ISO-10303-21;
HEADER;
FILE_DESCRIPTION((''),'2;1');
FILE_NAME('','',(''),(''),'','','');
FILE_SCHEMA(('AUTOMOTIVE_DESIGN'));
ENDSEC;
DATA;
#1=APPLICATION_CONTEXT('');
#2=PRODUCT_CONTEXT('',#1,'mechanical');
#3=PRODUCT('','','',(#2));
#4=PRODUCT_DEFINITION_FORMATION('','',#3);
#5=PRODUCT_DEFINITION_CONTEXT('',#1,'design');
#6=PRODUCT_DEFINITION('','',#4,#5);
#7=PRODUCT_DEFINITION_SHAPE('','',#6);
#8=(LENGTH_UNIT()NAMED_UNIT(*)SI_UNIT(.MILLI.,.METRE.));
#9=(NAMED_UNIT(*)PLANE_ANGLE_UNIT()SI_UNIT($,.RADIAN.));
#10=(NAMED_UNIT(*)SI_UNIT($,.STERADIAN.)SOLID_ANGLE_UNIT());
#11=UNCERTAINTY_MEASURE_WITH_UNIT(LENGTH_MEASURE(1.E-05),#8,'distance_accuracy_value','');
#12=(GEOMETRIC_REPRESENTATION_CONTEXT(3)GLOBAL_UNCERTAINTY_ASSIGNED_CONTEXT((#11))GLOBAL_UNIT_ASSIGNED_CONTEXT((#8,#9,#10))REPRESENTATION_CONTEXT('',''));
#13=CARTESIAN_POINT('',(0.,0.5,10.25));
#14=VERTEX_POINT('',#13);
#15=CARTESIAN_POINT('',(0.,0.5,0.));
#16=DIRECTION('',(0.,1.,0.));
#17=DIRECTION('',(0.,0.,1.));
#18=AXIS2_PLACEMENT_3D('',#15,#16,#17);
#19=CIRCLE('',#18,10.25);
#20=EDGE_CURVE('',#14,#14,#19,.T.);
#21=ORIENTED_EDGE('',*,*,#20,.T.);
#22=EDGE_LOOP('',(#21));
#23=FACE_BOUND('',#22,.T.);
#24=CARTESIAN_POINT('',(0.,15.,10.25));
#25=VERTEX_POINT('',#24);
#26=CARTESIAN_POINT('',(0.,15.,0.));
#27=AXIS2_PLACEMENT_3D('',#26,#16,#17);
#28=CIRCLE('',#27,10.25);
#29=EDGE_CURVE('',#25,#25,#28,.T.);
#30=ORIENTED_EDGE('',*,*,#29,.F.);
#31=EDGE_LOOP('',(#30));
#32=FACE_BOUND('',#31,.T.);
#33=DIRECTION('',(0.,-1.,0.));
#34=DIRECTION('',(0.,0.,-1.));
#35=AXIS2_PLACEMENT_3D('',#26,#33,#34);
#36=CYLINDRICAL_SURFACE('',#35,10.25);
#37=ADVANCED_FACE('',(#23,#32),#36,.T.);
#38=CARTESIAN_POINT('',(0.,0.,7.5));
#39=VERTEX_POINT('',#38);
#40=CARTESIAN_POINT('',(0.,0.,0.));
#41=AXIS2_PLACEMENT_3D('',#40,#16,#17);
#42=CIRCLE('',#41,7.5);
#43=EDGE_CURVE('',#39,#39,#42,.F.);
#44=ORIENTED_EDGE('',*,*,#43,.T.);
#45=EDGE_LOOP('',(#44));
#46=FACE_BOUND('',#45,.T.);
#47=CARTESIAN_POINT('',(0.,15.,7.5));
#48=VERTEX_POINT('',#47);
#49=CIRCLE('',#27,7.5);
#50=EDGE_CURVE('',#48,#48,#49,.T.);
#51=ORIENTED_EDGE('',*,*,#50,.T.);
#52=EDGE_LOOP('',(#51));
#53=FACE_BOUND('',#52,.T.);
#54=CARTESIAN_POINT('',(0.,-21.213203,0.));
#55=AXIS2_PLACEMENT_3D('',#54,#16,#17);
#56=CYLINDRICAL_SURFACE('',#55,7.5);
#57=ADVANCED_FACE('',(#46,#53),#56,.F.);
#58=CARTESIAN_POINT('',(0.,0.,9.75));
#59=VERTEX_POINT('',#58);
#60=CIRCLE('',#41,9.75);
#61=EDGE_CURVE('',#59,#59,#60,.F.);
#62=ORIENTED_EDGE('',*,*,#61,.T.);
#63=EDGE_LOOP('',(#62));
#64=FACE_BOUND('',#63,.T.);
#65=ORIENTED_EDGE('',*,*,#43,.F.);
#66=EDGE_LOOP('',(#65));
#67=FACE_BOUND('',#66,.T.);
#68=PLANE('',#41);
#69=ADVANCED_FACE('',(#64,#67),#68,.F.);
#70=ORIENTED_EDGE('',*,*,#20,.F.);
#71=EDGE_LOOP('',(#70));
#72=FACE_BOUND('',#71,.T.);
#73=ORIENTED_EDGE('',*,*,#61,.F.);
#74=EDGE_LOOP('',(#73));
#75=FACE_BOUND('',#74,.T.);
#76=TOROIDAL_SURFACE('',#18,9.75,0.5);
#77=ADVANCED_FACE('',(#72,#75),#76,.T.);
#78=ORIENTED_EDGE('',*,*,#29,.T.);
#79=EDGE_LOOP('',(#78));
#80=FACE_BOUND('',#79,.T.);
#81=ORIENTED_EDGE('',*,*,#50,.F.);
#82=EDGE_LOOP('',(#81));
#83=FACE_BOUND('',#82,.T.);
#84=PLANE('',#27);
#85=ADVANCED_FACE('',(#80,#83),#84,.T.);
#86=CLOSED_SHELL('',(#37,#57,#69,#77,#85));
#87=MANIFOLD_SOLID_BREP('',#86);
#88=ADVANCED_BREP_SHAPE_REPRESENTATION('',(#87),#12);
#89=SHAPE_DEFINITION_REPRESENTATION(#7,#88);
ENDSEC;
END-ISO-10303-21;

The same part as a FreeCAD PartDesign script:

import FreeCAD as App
import Part
import Sketcher
Q = App.Units.Quantity


def edges_at(feature, points):
    """Names of the edges that pass closest to the given points."""
    edges = feature.Shape.Edges
    near = lambda p: min(range(len(edges)), key=lambda i: edges[i].distToShape(Part.Vertex(*p))[0])
    return sorted({f"Edge{near(p) + 1}" for p in points})

doc = App.newDocument("Part")
body = doc.addObject("PartDesign::Body", "Body")

# Sketch on XZ plane
sketch1 = body.newObject("Sketcher::SketchObject", "Sketch")
sketch1.AttachmentSupport = (doc.getObject("XZ_Plane"), [""])
sketch1.MapMode = "FlatFace"
sketch1.addGeometry(Part.Circle(App.Vector(0, 0, 0), App.Vector(0, 0, 1), 10), False)
sketch1.addConstraint(Sketcher.Constraint("Coincident", 0, 3, -1, 1))
sketch1.addConstraint(Sketcher.Constraint("Diameter", 0, Q("20.5 mm")))
pad1 = body.newObject("PartDesign::Pad", "Pad")
pad1.Profile = sketch1
pad1.Length = 15
pad1.Reversed = True

# Sketch on XZ plane
sketch2 = body.newObject("Sketcher::SketchObject", "Sketch001")
sketch2.AttachmentSupport = (doc.getObject("XZ_Plane"), [""])
sketch2.MapMode = "FlatFace"
sketch2.AttachmentOffset = App.Placement(App.Vector(0, 0, -15), App.Rotation())
sketch2.addGeometry(Part.Circle(App.Vector(0, 0, 0), App.Vector(0, 0, 1), 8), False)
sketch2.addConstraint(Sketcher.Constraint("Coincident", 0, 3, -1, 1))
sketch2.addConstraint(Sketcher.Constraint("Diameter", 0, Q("15 mm")))
pocket1 = body.newObject("PartDesign::Pocket", "Pocket")
pocket1.Profile = sketch2
pocket1.Length = 15
pocket1.Reversed = True
doc.recompute()

fillet = body.newObject("PartDesign::Fillet", "Fillet")
fillet.Base = (pocket1, edges_at(pocket1, [(0, 0, -10.25)]))
fillet.Radius = 0.5

doc.recompute()
